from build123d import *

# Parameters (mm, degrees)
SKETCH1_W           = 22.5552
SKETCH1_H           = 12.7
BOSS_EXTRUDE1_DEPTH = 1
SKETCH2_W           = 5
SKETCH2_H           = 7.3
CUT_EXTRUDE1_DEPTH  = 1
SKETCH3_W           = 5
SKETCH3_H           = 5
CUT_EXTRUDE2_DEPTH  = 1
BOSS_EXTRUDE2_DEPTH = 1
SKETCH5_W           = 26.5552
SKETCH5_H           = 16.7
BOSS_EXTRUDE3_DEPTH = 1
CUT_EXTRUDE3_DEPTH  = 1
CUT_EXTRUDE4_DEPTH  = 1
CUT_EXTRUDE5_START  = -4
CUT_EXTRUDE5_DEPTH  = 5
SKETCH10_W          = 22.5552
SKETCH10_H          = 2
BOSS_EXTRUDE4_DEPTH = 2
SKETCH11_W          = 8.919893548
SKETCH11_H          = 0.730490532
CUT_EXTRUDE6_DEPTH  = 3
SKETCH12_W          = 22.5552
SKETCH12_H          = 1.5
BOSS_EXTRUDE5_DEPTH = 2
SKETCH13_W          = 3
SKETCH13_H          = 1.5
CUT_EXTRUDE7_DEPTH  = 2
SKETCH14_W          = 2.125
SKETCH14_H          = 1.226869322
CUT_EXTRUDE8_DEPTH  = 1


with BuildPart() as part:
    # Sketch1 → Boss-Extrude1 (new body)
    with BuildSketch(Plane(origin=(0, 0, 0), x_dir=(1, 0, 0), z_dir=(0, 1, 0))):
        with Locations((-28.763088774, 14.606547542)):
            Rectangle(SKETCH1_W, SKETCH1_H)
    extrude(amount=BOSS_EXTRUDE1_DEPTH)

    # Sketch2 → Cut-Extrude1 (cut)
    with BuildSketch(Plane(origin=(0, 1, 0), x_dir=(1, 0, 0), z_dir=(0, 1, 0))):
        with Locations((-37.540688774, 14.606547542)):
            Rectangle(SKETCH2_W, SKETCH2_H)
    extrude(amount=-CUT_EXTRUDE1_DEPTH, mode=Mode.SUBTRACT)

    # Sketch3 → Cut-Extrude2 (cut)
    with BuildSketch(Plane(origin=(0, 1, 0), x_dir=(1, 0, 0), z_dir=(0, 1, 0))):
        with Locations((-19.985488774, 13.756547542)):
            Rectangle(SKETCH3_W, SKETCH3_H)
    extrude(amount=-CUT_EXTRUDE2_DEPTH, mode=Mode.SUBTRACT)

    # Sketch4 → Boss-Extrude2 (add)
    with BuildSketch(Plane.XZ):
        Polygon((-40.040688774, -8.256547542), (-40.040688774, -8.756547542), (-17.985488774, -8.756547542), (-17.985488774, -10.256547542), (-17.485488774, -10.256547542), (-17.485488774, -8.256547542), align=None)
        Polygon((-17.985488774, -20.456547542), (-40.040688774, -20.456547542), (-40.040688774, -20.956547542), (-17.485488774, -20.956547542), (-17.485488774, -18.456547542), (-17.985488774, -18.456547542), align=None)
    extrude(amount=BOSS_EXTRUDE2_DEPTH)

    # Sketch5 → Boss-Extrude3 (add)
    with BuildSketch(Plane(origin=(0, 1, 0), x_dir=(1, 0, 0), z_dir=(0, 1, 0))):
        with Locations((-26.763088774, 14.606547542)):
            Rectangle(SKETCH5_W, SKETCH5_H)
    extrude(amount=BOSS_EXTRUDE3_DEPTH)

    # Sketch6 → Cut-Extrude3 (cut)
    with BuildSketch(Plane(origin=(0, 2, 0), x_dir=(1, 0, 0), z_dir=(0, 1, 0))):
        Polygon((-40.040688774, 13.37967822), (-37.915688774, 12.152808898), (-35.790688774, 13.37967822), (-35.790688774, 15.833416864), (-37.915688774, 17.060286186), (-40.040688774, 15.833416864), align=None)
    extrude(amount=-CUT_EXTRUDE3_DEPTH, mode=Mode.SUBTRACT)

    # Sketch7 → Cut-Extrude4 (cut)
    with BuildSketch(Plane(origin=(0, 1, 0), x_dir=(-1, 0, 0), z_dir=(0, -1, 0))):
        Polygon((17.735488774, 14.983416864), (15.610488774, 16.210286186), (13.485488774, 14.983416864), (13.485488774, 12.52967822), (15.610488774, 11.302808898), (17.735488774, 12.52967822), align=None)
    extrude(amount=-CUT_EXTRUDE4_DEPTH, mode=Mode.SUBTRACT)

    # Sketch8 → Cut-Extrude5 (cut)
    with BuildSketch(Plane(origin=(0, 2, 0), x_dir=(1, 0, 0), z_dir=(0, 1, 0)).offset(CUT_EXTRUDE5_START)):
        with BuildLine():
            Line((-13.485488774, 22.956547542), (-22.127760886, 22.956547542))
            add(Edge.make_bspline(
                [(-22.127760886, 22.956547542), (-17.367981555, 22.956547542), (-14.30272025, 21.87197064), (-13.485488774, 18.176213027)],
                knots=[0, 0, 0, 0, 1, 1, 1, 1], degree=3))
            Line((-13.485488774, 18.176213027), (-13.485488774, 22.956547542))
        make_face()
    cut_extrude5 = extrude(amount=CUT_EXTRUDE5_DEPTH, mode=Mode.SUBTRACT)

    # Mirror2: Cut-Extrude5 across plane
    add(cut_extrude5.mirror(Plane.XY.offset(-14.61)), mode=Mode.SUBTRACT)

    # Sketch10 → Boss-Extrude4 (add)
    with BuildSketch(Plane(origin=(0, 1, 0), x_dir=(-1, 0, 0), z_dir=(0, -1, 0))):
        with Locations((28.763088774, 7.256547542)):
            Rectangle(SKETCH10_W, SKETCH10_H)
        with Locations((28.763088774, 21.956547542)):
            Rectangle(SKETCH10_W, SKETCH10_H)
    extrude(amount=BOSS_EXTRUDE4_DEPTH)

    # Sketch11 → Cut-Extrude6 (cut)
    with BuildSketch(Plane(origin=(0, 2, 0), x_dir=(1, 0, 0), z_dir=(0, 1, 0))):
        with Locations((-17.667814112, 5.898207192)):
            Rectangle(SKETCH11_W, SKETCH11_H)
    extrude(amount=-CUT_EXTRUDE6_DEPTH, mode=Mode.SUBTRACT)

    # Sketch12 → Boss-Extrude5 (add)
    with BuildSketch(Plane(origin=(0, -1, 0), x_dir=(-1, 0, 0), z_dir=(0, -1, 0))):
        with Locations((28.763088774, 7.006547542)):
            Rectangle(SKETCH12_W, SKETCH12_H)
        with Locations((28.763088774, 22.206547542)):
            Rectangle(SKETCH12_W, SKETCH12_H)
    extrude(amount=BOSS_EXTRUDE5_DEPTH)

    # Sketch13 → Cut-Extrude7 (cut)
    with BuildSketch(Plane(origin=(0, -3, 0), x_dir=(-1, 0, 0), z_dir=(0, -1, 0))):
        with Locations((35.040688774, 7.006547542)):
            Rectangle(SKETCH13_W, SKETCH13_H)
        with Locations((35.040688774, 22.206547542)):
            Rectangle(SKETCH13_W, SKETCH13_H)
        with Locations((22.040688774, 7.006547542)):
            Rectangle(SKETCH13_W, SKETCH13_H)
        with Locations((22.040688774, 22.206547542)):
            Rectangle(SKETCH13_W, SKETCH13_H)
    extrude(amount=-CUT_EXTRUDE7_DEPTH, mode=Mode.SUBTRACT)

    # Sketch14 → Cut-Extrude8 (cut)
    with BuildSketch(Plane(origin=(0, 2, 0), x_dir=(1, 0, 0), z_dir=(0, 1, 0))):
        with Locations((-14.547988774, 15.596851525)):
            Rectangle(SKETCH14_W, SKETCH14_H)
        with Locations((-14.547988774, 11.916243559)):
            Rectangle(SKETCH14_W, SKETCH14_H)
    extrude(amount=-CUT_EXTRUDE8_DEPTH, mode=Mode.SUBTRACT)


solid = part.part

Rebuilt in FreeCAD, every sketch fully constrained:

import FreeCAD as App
import Part
import Sketcher
Q = App.Units.Quantity


def add_polygon(sketch, points):
    """Adds a closed chain of lines whose ends are joined by coincident constraints."""
    first, n = sketch.GeometryCount, len(points)
    for a, b in zip(points, points[1:] + points[:1]):
        sketch.addGeometry(Part.LineSegment(App.Vector(*a, 0), App.Vector(*b, 0)), False)
    for i in range(n):
        sketch.addConstraint(Sketcher.Constraint("Coincident", first + i, 2, first + (i + 1) % n, 1))

doc = App.newDocument("Part")
body = doc.addObject("PartDesign::Body", "Body")

sketch1 = body.newObject("Sketcher::SketchObject", "Sketch")
sketch1.AttachmentSupport = (doc.getObject("XZ_Plane"), [""])
sketch1.MapMode = "FlatFace"
add_polygon(sketch1, [(-40, -21), (-40, -8), (-17, -8), (-17, -21)])
sketch1.addConstraint([
    Sketcher.Constraint("Vertical", 0),
    Sketcher.Constraint("Horizontal", 1),
    Sketcher.Constraint("Vertical", 2),
    Sketcher.Constraint("Horizontal", 3),
    Sketcher.Constraint("DistanceY", 0, 1, 0, 2, Q("12.7 mm")),
    Sketcher.Constraint("DistanceX", 1, 1, 1, 2, Q("22.5552 mm")),
    Sketcher.Constraint("DistanceX", 0, 2, -1, 1, Q("40.040689 mm")),
    Sketcher.Constraint("DistanceY", 0, 2, -1, 1, Q("8.256548 mm")),
])
pad1 = body.newObject("PartDesign::Pad", "Pad")
pad1.Profile = sketch1
pad1.Length = 1
pad1.Reversed = True

sketch2 = body.newObject("Sketcher::SketchObject", "Sketch001")
sketch2.AttachmentSupport = (doc.getObject("XZ_Plane"), [""])
sketch2.MapMode = "FlatFace"
sketch2.AttachmentOffset = App.Placement(App.Vector(0, 0, -1), App.Rotation())
add_polygon(sketch2, [(-40, -18), (-40, -11), (-35, -11), (-35, -18)])
sketch2.addConstraint([
    Sketcher.Constraint("Vertical", 0),
    Sketcher.Constraint("Horizontal", 1),
    Sketcher.Constraint("Vertical", 2),
    Sketcher.Constraint("Horizontal", 3),
    Sketcher.Constraint("DistanceX", 1, 1, 1, 2, Q("5 mm")),
    Sketcher.Constraint("DistanceY", 0, 1, 0, 2, Q("7.3 mm")),
    Sketcher.Constraint("DistanceX", 0, 2, -1, 1, Q("40.040689 mm")),
    Sketcher.Constraint("DistanceY", 0, 2, -1, 1, Q("10.956548 mm")),
])
pocket1 = body.newObject("PartDesign::Pocket", "Pocket")
pocket1.Profile = sketch2
pocket1.Length = 1
pocket1.Reversed = True

sketch3 = body.newObject("Sketcher::SketchObject", "Sketch002")
sketch3.AttachmentSupport = (doc.getObject("XZ_Plane"), [""])
sketch3.MapMode = "FlatFace"
sketch3.AttachmentOffset = App.Placement(App.Vector(0, 0, -1), App.Rotation())
add_polygon(sketch3, [(-22, -16), (-22, -11), (-17, -11), (-17, -16)])
sketch3.addConstraint([
    Sketcher.Constraint("Vertical", 0),
    Sketcher.Constraint("Horizontal", 1),
    Sketcher.Constraint("Vertical", 2),
    Sketcher.Constraint("Horizontal", 3),
    Sketcher.Constraint("Equal", 3, 0),
    Sketcher.Constraint("DistanceX", 1, 1, 1, 2, Q("5 mm")),
    Sketcher.Constraint("DistanceX", 0, 2, -1, 1, Q("22.485489 mm")),
    Sketcher.Constraint("DistanceY", 0, 2, -1, 1, Q("11.256548 mm")),
])
pocket2 = body.newObject("PartDesign::Pocket", "Pocket001")
pocket2.Profile = sketch3
pocket2.Length = 1
pocket2.Reversed = True

sketch4 = body.newObject("Sketcher::SketchObject", "Sketch003")
sketch4.AttachmentSupport = (doc.getObject("XZ_Plane"), [""])
sketch4.MapMode = "FlatFace"
add_polygon(sketch4, [(-40, -8.3), (-40, -8.8), (-18, -8.8), (-18, -10.3), (-17.5, -10.3), (-17.5, -8.3)])
add_polygon(sketch4, [(-18, -20.5), (-40, -20.5), (-40, -21), (-17.5, -21), (-17.5, -18.5), (-18, -18.5)])
sketch4.addConstraint([
    Sketcher.Constraint("Vertical", 0),
    Sketcher.Constraint("Horizontal", 1),
    Sketcher.Constraint("Vertical", 2),
    Sketcher.Constraint("Horizontal", 3),
    Sketcher.Constraint("Vertical", 4),
    Sketcher.Constraint("Horizontal", 5),
    Sketcher.Constraint("Horizontal", 6),
    Sketcher.Constraint("Vertical", 7),
    Sketcher.Constraint("Horizontal", 8),
    Sketcher.Constraint("Vertical", 9),
    Sketcher.Constraint("Horizontal", 10),
    Sketcher.Constraint("Vertical", 11),
    Sketcher.Constraint("Vertical", 5, 2, 6, 2),
    Sketcher.Constraint("Vertical", 4, 2, 8, 2),
    Sketcher.Constraint("Vertical", 2, 2, 10, 2),
    Sketcher.Constraint("Equal", 10, 0),
    Sketcher.Constraint("Equal", 0, 7),
    Sketcher.Constraint("Equal", 4, 11),
    Sketcher.Constraint("DistanceY", 4, 1, 4, 2, Q("2 mm")),
    Sketcher.Constraint("DistanceX", 3, 1, 3, 2, Q("0.5 mm")),
    Sketcher.Constraint("DistanceY", 6, 2, 0, 2, Q("11.7 mm")),
    Sketcher.Constraint("DistanceX", 1, 1, 1, 2, Q("22.0552 mm")),
    Sketcher.Constraint("DistanceX", 0, 2, -1, 1, Q("40.040689 mm")),
    Sketcher.Constraint("DistanceY", 0, 2, -1, 1, Q("8.756548 mm")),
])
pad2 = body.newObject("PartDesign::Pad", "Pad001")
pad2.Profile = sketch4
pad2.Length = 1

sketch5 = body.newObject("Sketcher::SketchObject", "Sketch004")
sketch5.AttachmentSupport = (doc.getObject("XZ_Plane"), [""])
sketch5.MapMode = "FlatFace"
sketch5.AttachmentOffset = App.Placement(App.Vector(0, 0, -1), App.Rotation())
add_polygon(sketch5, [(-40, -23), (-40, -6), (-13, -6), (-13, -23)])
sketch5.addConstraint([
    Sketcher.Constraint("Vertical", 0),
    Sketcher.Constraint("Horizontal", 1),
    Sketcher.Constraint("Vertical", 2),
    Sketcher.Constraint("Horizontal", 3),
    Sketcher.Constraint("DistanceY", 0, 1, 0, 2, Q("16.7 mm")),
    Sketcher.Constraint("DistanceX", 1, 1, 1, 2, Q("26.5552 mm")),
    Sketcher.Constraint("DistanceX", 0, 2, -1, 1, Q("40.040689 mm")),
    Sketcher.Constraint("DistanceY", 0, 2, -1, 1, Q("6.256548 mm")),
])
pad3 = body.newObject("PartDesign::Pad", "Pad002")
pad3.Profile = sketch5
pad3.Length = 1
pad3.Reversed = True

sketch6 = body.newObject("Sketcher::SketchObject", "Sketch005")
sketch6.AttachmentSupport = (doc.getObject("XZ_Plane"), [""])
sketch6.MapMode = "FlatFace"
sketch6.AttachmentOffset = App.Placement(App.Vector(0, 0, -2), App.Rotation())
add_polygon(sketch6, [(-40, -13.4), (-37.9, -12.2), (-35.8, -13.4), (-35.8, -15.8), (-37.9, -17.1), (-40, -15.8)])
sketch6.addConstraint([
    Sketcher.Constraint("Vertical", 2),
    Sketcher.Constraint("Vertical", 5),
    Sketcher.Constraint("Parallel", 0, 3),
    Sketcher.Constraint("Parallel", 1, 4),
    Sketcher.Constraint("Horizontal", 2, 2, 4, 2),
    Sketcher.Constraint("Horizontal", 1, 2, 5, 2),
    Sketcher.Constraint("Vertical", 0, 2, 3, 2),
    Sketcher.Constraint("Angle", 0, Q("30 deg")),
    Sketcher.Constraint("DistanceX", 4, 2, 2, 2, Q("4.25 mm")),
    Sketcher.Constraint("DistanceY", 2, 2, 2, 1, Q("2.453739 mm")),
    Sketcher.Constraint("DistanceX", 0, 2, -1, 1, Q("37.915689 mm")),
    Sketcher.Constraint("DistanceY", 0, 2, -1, 1, Q("12.152809 mm")),
])
pocket3 = body.newObject("PartDesign::Pocket", "Pocket002")
pocket3.Profile = sketch6
pocket3.Length = 1
pocket3.Reversed = True

sketch7 = body.newObject("Sketcher::SketchObject", "Sketch006")
sketch7.AttachmentSupport = (doc.getObject("XZ_Plane"), [""])
sketch7.MapMode = "FlatFace"
sketch7.AttachmentOffset = App.Placement(App.Vector(0, 0, -1), App.Rotation())
add_polygon(sketch7, [(-17.7, -15), (-15.6, -16.2), (-13.5, -15), (-13.5, -12.5), (-15.6, -11.3), (-17.7, -12.5)])
sketch7.addConstraint([
    Sketcher.Constraint("Vertical", 2),
    Sketcher.Constraint("Vertical", 5),
    Sketcher.Constraint("Parallel", 0, 3),
    Sketcher.Constraint("Parallel", 1, 4),
    Sketcher.Constraint("Horizontal", 2, 2, 4, 2),
    Sketcher.Constraint("Horizontal", 1, 2, 5, 2),
    Sketcher.Constraint("Vertical", 0, 2, 3, 2),
    Sketcher.Constraint("Angle", 0, Q("-30 deg")),
    Sketcher.Constraint("DistanceX", 4, 2, 2, 2, Q("4.25 mm")),
    Sketcher.Constraint("DistanceY", 2, 1, 2, 2, Q("2.453739 mm")),
    Sketcher.Constraint("DistanceX", 0, 2, -1, 1, Q("15.610489 mm")),
    Sketcher.Constraint("DistanceY", 2, 2, -1, 1, Q("12.529678 mm")),
])
pocket4 = body.newObject("PartDesign::Pocket", "Pocket003")
pocket4.Profile = sketch7
pocket4.Length = 1

sketch8 = body.newObject("Sketcher::SketchObject", "Sketch007")
sketch8.AttachmentSupport = (doc.getObject("XZ_Plane"), [""])
sketch8.MapMode = "FlatFace"
sketch8.AttachmentOffset = App.Placement(App.Vector(0, 0, 2), App.Rotation())
sketch8.addGeometry([
    Part.LineSegment(App.Vector(-13.485489, -22.956548, 0), App.Vector(-22.127761, -22.956548, 0)),
    Part.BSplineCurve([App.Vector(-22.127761, -22.956548, 0), App.Vector(-17.367982, -22.956548, 0), App.Vector(-14.30272, -21.871971, 0), App.Vector(-13.485489, -18.176213, 0)], [4, 4], [0, 1], False, 3, [1, 1, 1, 1], False),
    Part.LineSegment(App.Vector(-13.485489, -18.176213, 0), App.Vector(-13.485489, -22.956548, 0)),
], False)
sketch8.addConstraint([
    Sketcher.Constraint("Block", 1),
    Sketcher.Constraint("Coincident", 0, 2, 1, 1),
    Sketcher.Constraint("Coincident", 1, 2, 2, 1),
    Sketcher.Constraint("Coincident", 2, 2, 0, 1),
    Sketcher.Constraint("Horizontal", 0),
    Sketcher.Constraint("Vertical", 2),
])
pocket5 = body.newObject("PartDesign::Pocket", "Pocket004")
pocket5.Profile = sketch8
pocket5.Length = 5
doc.recompute()

datumplane = body.newObject("PartDesign::Plane", "DatumPlane")
datumplane.AttachmentSupport = (doc.getObject("XY_Plane"), [""])
datumplane.MapMode = "FlatFace"
datumplane.AttachmentOffset = App.Placement(App.Vector(0, 0, -14.61), App.Rotation())
mirrored = body.newObject("PartDesign::Mirrored", "Mirrored")
mirrored.Originals = [pocket5]
mirrored.MirrorPlane = (datumplane, [""])
body.Tip = mirrored

sketch9 = body.newObject("Sketcher::SketchObject", "Sketch008")
sketch9.AttachmentSupport = (doc.getObject("XZ_Plane"), [""])
sketch9.MapMode = "FlatFace"
sketch9.AttachmentOffset = App.Placement(App.Vector(0, 0, -1), App.Rotation())
add_polygon(sketch9, [(-17.5, -8.3), (-17.5, -6.3), (-40, -6.3), (-40, -8.3)])
add_polygon(sketch9, [(-17.5, -23), (-17.5, -21), (-40, -21), (-40, -23)])
sketch9.addConstraint([
    Sketcher.Constraint("Vertical", 0),
    Sketcher.Constraint("Horizontal", 1),
    Sketcher.Constraint("Vertical", 2),
    Sketcher.Constraint("Horizontal", 3),
    Sketcher.Constraint("Vertical", 4),
    Sketcher.Constraint("Horizontal", 5),
    Sketcher.Constraint("Vertical", 6),
    Sketcher.Constraint("Horizontal", 7),
    Sketcher.Constraint("Vertical", 3, 2, 4, 2),
    Sketcher.Constraint("Vertical", 2, 2, 5, 2),
    Sketcher.Constraint("Equal", 2, 4),
    Sketcher.Constraint("DistanceY", 0, 1, 0, 2, Q("2 mm")),
    Sketcher.Constraint("DistanceY", 4, 2, 3, 2, Q("12.7 mm")),
    Sketcher.Constraint("DistanceX", 1, 2, 1, 1, Q("22.5552 mm")),
    Sketcher.Constraint("DistanceX", 0, 2, -1, 1, Q("17.485489 mm")),
    Sketcher.Constraint("DistanceY", 0, 2, -1, 1, Q("6.256548 mm")),
])
pad4 = body.newObject("PartDesign::Pad", "Pad003")
pad4.Profile = sketch9
pad4.Length = 2

sketch10 = body.newObject("Sketcher::SketchObject", "Sketch009")
sketch10.AttachmentSupport = (doc.getObject("XZ_Plane"), [""])
sketch10.MapMode = "FlatFace"
sketch10.AttachmentOffset = App.Placement(App.Vector(0, 0, -2), App.Rotation())
add_polygon(sketch10, [(-22.1, -6.3), (-22.1, -5.5), (-13.2, -5.5), (-13.2, -6.3)])
sketch10.addConstraint([
    Sketcher.Constraint("Vertical", 0),
    Sketcher.Constraint("Horizontal", 1),
    Sketcher.Constraint("Vertical", 2),
    Sketcher.Constraint("Horizontal", 3),
    Sketcher.Constraint("DistanceY", 0, 1, 0, 2, Q("0.730491 mm")),
    Sketcher.Constraint("DistanceX", 1, 1, 1, 2, Q("8.919894 mm")),
    Sketcher.Constraint("DistanceX", 0, 2, -1, 1, Q("22.127761 mm")),
    Sketcher.Constraint("DistanceY", 0, 2, -1, 1, Q("5.532962 mm")),
])
pocket6 = body.newObject("PartDesign::Pocket", "Pocket005")
pocket6.Profile = sketch10
pocket6.Length = 3
pocket6.Reversed = True

sketch11 = body.newObject("Sketcher::SketchObject", "Sketch010")
sketch11.AttachmentSupport = (doc.getObject("XZ_Plane"), [""])
sketch11.MapMode = "FlatFace"
sketch11.AttachmentOffset = App.Placement(App.Vector(0, 0, 1), App.Rotation())
add_polygon(sketch11, [(-17.5, -7.8), (-17.5, -6.3), (-40, -6.3), (-40, -7.8)])
add_polygon(sketch11, [(-17.5, -23), (-17.5, -21.5), (-40, -21.5), (-40, -23)])
sketch11.addConstraint([
    Sketcher.Constraint("Vertical", 0),
    Sketcher.Constraint("Horizontal", 1),
    Sketcher.Constraint("Vertical", 2),
    Sketcher.Constraint("Horizontal", 3),
    Sketcher.Constraint("Vertical", 4),
    Sketcher.Constraint("Horizontal", 5),
    Sketcher.Constraint("Vertical", 6),
    Sketcher.Constraint("Horizontal", 7),
    Sketcher.Constraint("Vertical", 3, 2, 4, 2),
    Sketcher.Constraint("Vertical", 2, 2, 5, 2),
    Sketcher.Constraint("Equal", 2, 4),
    Sketcher.Constraint("DistanceY", 0, 1, 0, 2, Q("1.5 mm")),
    Sketcher.Constraint("DistanceY", 4, 2, 3, 2, Q("13.7 mm")),
    Sketcher.Constraint("DistanceX", 1, 2, 1, 1, Q("22.5552 mm")),
    Sketcher.Constraint("DistanceX", 0, 2, -1, 1, Q("17.485489 mm")),
    Sketcher.Constraint("DistanceY", 0, 2, -1, 1, Q("6.256548 mm")),
])
pad5 = body.newObject("PartDesign::Pad", "Pad004")
pad5.Profile = sketch11
pad5.Length = 2

sketch12 = body.newObject("Sketcher::SketchObject", "Sketch011")
sketch12.AttachmentSupport = (doc.getObject("XZ_Plane"), [""])
sketch12.MapMode = "FlatFace"
sketch12.AttachmentOffset = App.Placement(App.Vector(0, 0, 3), App.Rotation())
add_polygon(sketch12, [(-33.5, -7.8), (-33.5, -6.3), (-36.5, -6.3), (-36.5, -7.8)])
add_polygon(sketch12, [(-33.5, -23), (-33.5, -21.5), (-36.5, -21.5), (-36.5, -23)])
add_polygon(sketch12, [(-20.5, -7.8), (-20.5, -6.3), (-23.5, -6.3), (-23.5, -7.8)])
add_polygon(sketch12, [(-20.5, -23), (-20.5, -21.5), (-23.5, -21.5), (-23.5, -23)])
sketch12.addConstraint([
    Sketcher.Constraint("Vertical", 0),
    Sketcher.Constraint("Horizontal", 1),
    Sketcher.Constraint("Vertical", 2),
    Sketcher.Constraint("Horizontal", 3),
    Sketcher.Constraint("Vertical", 4),
    Sketcher.Constraint("Horizontal", 5),
    Sketcher.Constraint("Vertical", 6),
    Sketcher.Constraint("Horizontal", 7),
    Sketcher.Constraint("Vertical", 8),
    Sketcher.Constraint("Horizontal", 9),
    Sketcher.Constraint("Vertical", 10),
    Sketcher.Constraint("Horizontal", 11),
    Sketcher.Constraint("Vertical", 12),
    Sketcher.Constraint("Horizontal", 13),
    Sketcher.Constraint("Vertical", 14),
    Sketcher.Constraint("Horizontal", 15),
    Sketcher.Constraint("Horizontal", 1, 2, 8, 2),
    Sketcher.Constraint("Horizontal", 3, 2, 10, 2),
    Sketcher.Constraint("Horizontal", 5, 2, 12, 2),
    Sketcher.Constraint("Horizontal", 7, 2, 14, 2),
    Sketcher.Constraint("Vertical", 3, 2, 4, 2),
    Sketcher.Constraint("Vertical", 2, 2, 5, 2),
    Sketcher.Constraint("Vertical", 11, 2, 12, 2),
    Sketcher.Constraint("Vertical", 10, 2, 13, 2),
    Sketcher.Constraint("Equal", 7, 9),
    Sketcher.Constraint("Equal", 2, 4),
    Sketcher.Constraint("DistanceX", 1, 2, 1, 1, Q("3 mm")),
    Sketcher.Constraint("DistanceY", 0, 1, 0, 2, Q("1.5 mm")),
    Sketcher.Constraint("DistanceX", 0, 2, 8, 2, Q("13 mm")),
    Sketcher.Constraint("DistanceY", 4, 2, 3, 2, Q("13.7 mm")),
    Sketcher.Constraint("DistanceX", 0, 2, -1, 1, Q("33.540689 mm")),
    Sketcher.Constraint("DistanceY", 0, 2, -1, 1, Q("6.256548 mm")),
])
pocket7 = body.newObject("PartDesign::Pocket", "Pocket006")
pocket7.Profile = sketch12
pocket7.Length = 2

sketch13 = body.newObject("Sketcher::SketchObject", "Sketch012")
sketch13.AttachmentSupport = (doc.getObject("XZ_Plane"), [""])
sketch13.MapMode = "FlatFace"
sketch13.AttachmentOffset = App.Placement(App.Vector(0, 0, -2), App.Rotation())
add_polygon(sketch13, [(-15.6, -16.2), (-15.6, -15), (-13.5, -15), (-13.5, -16.2)])
add_polygon(sketch13, [(-15.6, -12.5), (-15.6, -11.3), (-13.5, -11.3), (-13.5, -12.5)])
sketch13.addConstraint([
    Sketcher.Constraint("Vertical", 0),
    Sketcher.Constraint("Horizontal", 1),
    Sketcher.Constraint("Vertical", 2),
    Sketcher.Constraint("Horizontal", 3),
    Sketcher.Constraint("Vertical", 4),
    Sketcher.Constraint("Horizontal", 5),
    Sketcher.Constraint("Vertical", 6),
    Sketcher.Constraint("Horizontal", 7),
    Sketcher.Constraint("Vertical", 3, 2, 4, 2),
    Sketcher.Constraint("Vertical", 2, 2, 5, 2),
    Sketcher.Constraint("Equal", 2, 4),
    Sketcher.Constraint("DistanceX", 1, 1, 1, 2, Q("2.125 mm")),
    Sketcher.Constraint("DistanceY", 0, 1, 0, 2, Q("1.226869 mm")),
    Sketcher.Constraint("DistanceX", 0, 2, -1, 1, Q("15.610489 mm")),
    Sketcher.Constraint("DistanceY", 4, 2, -1, 1, Q("11.302809 mm")),
    Sketcher.Constraint("DistanceY", 1, 2, 6, 2, Q("2.453739 mm")),
])
pocket8 = body.newObject("PartDesign::Pocket", "Pocket007")
pocket8.Profile = sketch13
pocket8.Length = 1
pocket8.Reversed = True

doc.recompute()
